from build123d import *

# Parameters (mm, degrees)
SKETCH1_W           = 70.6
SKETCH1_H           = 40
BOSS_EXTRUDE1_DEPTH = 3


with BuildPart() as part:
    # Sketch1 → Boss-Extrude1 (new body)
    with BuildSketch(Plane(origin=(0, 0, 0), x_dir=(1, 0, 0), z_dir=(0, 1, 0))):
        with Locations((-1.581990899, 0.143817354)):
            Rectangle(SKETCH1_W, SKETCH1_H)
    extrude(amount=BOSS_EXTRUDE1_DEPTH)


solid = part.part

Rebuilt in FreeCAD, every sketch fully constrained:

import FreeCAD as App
import Part
import Sketcher
from FreeCAD import Vector
Q = App.Units.Quantity


def add_polygon(sketch, points):
    """Adds a closed chain of lines whose ends are joined by coincident constraints."""
    first, n = sketch.GeometryCount, len(points)
    for a, b in zip(points, points[1:] + points[:1]):
        sketch.addGeometry(Part.LineSegment(App.Vector(*a, 0), App.Vector(*b, 0)), False)
    for i in range(n):
        sketch.addConstraint(Sketcher.Constraint("Coincident", first + i, 2, first + (i + 1) % n, 1))

doc = App.newDocument("Part")
body = doc.addObject("PartDesign::Body", "Body")

# Sketch on XZ plane
sketch1 = body.newObject("Sketcher::SketchObject", "Sketch")
sketch1.AttachmentSupport = (doc.getObject("XZ_Plane"), [""])
sketch1.MapMode = "FlatFace"
add_polygon(sketch1, [(-37, -20), (-37, 20), (34, 20), (34, -20)])  # lines 0-3
sketch1.addConstraint(Sketcher.Constraint("Vertical", 0))
sketch1.addConstraint(Sketcher.Constraint("Horizontal", 1))
sketch1.addConstraint(Sketcher.Constraint("Vertical", 2))
sketch1.addConstraint(Sketcher.Constraint("Horizontal", 3))
sketch1.addConstraint(Sketcher.Constraint("DistanceY", 0, 1, 0, 2, Q("40 mm")))
sketch1.addConstraint(Sketcher.Constraint("DistanceX", 1, 1, 1, 2, Q("70.6 mm")))
sketch1.addConstraint(Sketcher.Constraint("DistanceX", 0, 2, -1, 1, Q("36.881991 mm")))
sketch1.addConstraint(Sketcher.Constraint("DistanceY", -1, 1, 0, 2, Q("19.856183 mm")))
pad1 = body.newObject("PartDesign::Pad", "Pad")
pad1.Profile = sketch1
pad1.Length = 3
pad1.Reversed = True

doc.recompute()
